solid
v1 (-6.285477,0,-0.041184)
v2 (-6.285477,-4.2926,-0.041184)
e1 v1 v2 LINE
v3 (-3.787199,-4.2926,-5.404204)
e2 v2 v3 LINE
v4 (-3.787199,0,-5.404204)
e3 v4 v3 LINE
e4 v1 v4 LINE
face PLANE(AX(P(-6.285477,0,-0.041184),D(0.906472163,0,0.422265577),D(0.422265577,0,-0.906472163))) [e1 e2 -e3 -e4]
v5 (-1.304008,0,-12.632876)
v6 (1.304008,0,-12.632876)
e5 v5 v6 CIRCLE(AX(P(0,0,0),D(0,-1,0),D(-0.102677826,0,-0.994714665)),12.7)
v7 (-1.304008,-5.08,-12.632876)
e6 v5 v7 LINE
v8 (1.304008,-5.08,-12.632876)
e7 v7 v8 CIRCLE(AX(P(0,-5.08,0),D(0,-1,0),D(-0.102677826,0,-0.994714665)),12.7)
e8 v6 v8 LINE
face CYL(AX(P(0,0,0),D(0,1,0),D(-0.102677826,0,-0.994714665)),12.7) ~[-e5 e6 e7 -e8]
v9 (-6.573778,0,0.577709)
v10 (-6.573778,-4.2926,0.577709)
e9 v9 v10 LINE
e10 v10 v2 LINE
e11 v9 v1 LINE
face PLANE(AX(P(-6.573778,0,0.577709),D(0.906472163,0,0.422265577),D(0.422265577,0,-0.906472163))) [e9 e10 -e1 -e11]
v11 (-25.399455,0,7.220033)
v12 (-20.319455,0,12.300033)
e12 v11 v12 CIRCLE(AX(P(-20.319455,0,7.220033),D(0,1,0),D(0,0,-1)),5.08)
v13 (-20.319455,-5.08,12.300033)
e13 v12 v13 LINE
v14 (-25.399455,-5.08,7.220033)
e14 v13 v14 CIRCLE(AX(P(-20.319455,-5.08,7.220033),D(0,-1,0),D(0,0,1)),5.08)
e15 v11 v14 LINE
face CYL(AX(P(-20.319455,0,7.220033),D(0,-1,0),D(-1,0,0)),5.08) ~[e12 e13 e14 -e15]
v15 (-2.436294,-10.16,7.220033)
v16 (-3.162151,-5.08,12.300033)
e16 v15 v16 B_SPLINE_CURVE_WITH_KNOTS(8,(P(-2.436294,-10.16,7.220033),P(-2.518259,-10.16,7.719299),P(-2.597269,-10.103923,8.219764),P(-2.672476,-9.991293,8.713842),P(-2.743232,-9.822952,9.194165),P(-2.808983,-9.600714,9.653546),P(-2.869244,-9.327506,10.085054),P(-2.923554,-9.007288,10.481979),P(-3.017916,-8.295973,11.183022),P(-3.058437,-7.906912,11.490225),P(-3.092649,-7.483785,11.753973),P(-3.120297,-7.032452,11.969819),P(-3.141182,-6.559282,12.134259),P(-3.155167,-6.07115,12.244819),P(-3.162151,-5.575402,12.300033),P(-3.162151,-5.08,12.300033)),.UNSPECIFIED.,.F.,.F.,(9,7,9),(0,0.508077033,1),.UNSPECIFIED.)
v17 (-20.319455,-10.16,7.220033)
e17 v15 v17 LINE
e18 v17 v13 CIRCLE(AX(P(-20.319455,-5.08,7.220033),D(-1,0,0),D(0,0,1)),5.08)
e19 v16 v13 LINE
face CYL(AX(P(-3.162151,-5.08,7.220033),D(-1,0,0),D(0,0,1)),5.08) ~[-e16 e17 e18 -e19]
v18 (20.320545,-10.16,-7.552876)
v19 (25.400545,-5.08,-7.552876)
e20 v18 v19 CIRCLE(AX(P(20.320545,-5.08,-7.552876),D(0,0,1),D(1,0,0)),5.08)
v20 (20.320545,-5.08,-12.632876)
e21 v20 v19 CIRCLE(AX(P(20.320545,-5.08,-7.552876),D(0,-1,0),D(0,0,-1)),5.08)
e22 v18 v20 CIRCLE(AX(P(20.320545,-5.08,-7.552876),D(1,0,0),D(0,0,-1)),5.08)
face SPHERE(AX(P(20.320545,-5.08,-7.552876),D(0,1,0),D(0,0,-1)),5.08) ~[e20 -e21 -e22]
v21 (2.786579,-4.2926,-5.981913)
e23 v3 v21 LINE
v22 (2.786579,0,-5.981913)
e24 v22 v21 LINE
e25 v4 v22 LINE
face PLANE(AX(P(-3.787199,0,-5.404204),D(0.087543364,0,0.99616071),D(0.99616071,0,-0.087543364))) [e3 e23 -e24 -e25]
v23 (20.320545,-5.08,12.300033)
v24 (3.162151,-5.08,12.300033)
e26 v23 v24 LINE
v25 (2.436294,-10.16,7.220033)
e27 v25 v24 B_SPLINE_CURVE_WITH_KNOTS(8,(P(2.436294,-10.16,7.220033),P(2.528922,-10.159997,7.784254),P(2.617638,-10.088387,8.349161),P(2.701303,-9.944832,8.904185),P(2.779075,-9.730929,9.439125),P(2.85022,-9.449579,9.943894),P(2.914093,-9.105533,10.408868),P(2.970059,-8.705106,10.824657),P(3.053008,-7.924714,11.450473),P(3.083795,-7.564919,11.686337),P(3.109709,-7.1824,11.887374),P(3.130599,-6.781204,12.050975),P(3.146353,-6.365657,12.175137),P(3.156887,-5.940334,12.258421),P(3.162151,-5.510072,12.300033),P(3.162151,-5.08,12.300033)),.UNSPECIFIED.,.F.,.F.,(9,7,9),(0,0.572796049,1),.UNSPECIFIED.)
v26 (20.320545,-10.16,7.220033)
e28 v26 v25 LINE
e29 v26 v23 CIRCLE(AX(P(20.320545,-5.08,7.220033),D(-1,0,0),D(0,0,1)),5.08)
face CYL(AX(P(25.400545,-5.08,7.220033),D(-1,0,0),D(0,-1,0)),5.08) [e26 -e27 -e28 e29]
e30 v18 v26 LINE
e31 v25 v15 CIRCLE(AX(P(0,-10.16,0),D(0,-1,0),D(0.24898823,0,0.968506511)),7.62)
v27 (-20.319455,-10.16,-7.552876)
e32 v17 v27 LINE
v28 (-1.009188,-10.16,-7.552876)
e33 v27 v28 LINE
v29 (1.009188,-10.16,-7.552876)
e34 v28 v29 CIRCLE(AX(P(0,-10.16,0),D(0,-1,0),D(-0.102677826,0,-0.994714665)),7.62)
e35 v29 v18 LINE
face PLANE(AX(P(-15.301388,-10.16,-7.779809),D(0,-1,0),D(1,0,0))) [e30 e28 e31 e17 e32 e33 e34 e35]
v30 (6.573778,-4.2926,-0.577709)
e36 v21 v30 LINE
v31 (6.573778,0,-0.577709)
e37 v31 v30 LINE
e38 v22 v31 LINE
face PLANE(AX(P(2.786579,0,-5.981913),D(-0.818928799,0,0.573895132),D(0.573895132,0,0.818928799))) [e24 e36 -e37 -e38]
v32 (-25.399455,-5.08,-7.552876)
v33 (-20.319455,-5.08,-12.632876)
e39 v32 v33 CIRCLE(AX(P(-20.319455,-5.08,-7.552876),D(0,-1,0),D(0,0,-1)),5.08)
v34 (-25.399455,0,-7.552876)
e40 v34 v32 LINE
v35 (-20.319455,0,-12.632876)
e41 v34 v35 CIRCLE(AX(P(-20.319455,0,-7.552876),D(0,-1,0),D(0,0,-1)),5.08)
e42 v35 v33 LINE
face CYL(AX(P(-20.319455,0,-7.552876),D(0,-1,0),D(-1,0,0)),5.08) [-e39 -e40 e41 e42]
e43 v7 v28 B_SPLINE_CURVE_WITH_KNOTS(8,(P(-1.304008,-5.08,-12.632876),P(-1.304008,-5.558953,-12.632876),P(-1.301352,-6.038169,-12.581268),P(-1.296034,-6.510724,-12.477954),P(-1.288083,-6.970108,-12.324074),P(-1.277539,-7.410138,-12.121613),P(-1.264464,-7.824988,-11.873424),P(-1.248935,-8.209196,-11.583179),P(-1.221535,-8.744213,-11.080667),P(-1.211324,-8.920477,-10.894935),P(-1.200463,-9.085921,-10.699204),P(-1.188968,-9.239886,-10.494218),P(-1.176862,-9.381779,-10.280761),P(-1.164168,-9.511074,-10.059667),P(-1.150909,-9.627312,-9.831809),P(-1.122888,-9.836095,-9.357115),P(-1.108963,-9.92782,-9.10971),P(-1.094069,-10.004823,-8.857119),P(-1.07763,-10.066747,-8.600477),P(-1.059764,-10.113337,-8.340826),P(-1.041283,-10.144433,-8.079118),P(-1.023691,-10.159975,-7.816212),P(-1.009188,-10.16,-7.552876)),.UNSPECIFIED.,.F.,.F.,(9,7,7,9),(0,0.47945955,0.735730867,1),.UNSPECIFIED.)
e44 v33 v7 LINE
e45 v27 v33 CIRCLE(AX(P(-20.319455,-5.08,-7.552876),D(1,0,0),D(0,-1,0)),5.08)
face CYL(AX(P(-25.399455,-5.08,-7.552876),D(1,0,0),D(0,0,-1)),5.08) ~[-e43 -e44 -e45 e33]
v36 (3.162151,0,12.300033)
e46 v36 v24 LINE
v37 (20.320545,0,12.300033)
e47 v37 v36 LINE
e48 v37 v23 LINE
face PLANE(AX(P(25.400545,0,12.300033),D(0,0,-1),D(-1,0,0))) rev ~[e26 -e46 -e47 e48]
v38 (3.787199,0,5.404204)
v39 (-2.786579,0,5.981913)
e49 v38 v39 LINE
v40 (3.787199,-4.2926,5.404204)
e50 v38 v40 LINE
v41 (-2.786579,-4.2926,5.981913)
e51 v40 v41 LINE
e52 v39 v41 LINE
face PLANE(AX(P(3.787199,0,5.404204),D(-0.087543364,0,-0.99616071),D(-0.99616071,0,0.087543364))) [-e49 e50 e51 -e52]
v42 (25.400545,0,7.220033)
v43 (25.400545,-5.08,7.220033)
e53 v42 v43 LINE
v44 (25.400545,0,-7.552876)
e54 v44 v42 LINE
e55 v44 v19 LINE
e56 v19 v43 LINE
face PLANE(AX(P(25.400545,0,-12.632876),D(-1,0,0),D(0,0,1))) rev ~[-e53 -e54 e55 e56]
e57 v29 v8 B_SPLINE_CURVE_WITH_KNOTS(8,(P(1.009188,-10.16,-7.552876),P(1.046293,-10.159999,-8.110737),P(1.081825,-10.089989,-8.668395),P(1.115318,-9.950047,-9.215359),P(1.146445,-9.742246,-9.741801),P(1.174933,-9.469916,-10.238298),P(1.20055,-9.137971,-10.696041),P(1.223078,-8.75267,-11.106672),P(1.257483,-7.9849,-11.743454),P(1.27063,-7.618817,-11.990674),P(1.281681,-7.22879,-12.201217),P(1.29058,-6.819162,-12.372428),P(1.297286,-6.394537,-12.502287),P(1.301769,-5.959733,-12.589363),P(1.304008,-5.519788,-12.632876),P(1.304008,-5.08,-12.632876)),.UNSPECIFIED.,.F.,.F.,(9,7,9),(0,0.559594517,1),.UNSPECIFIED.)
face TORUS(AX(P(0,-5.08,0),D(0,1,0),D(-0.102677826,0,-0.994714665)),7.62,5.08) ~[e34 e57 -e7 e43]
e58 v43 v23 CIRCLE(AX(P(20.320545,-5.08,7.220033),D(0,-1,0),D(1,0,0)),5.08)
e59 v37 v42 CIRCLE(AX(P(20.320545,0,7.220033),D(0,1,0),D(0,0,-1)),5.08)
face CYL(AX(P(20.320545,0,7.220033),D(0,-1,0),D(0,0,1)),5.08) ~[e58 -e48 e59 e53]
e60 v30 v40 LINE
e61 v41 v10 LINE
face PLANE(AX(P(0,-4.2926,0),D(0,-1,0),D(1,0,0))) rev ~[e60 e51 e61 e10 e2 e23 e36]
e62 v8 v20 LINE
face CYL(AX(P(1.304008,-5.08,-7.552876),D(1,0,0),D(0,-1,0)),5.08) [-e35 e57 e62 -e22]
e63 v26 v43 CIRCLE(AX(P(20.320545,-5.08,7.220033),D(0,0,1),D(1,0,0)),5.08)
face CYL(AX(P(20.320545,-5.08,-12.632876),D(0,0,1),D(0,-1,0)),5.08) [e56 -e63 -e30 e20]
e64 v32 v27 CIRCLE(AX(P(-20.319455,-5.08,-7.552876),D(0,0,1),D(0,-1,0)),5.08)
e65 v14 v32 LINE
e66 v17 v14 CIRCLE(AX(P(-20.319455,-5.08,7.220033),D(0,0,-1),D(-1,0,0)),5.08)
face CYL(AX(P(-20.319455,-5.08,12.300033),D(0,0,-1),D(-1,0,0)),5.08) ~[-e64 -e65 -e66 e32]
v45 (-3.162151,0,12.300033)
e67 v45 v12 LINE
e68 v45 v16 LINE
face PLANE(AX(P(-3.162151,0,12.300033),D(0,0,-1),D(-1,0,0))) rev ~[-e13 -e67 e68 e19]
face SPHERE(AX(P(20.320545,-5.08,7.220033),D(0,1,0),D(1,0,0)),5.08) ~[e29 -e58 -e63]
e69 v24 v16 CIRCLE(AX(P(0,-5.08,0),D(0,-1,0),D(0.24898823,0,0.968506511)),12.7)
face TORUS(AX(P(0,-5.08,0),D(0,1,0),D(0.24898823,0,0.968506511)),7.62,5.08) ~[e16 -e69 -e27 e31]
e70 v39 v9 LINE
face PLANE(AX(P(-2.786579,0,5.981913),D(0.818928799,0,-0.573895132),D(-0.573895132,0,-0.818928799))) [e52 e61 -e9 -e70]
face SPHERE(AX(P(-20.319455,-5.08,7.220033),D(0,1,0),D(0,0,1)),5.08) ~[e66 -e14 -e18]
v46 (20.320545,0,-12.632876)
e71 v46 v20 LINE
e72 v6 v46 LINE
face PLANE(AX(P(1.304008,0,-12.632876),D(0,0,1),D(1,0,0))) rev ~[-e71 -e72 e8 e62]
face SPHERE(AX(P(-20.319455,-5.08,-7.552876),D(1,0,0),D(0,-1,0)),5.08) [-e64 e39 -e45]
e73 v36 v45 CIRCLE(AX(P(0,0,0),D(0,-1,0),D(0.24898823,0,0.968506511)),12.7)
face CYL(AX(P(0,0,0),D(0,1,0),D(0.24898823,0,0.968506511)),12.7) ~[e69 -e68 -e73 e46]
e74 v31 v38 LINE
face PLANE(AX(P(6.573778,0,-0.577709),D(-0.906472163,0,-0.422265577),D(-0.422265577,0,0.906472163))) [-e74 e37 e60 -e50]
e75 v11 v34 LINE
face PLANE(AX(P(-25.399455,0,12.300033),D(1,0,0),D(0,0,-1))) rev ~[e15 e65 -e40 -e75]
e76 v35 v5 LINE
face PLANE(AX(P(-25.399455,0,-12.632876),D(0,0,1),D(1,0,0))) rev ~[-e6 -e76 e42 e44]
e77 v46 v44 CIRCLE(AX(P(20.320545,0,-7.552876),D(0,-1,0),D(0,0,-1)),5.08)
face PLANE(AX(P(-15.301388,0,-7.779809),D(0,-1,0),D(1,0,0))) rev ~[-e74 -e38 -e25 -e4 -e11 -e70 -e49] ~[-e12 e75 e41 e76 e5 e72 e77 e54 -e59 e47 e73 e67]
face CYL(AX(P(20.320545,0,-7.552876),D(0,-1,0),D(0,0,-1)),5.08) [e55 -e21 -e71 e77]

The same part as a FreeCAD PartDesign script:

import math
import FreeCAD as App
import Part
import Sketcher
Q = App.Units.Quantity


def edges_at(feature, points):
    """Names of the edges that pass closest to the given points."""
    edges = feature.Shape.Edges
    near = lambda p: min(range(len(edges)), key=lambda i: edges[i].distToShape(Part.Vertex(*p))[0])
    return sorted({f"Edge{near(p) + 1}" for p in points})

doc = App.newDocument("Part")
body = doc.addObject("PartDesign::Body", "Body")

sketch1 = body.newObject("Sketcher::SketchObject", "Sketch")
sketch1.AttachmentSupport = (doc.getObject("XZ_Plane"), [""])
sketch1.MapMode = "FlatFace"
sketch1.addGeometry([
    Part.LineSegment(App.Vector(-25.4, 12.3, 0), App.Vector(-25.4, -12.6, 0)),
    Part.LineSegment(App.Vector(-25.4, -12.6, 0), App.Vector(-1.3, -12.6, 0)),
    Part.ArcOfCircle(Part.Circle(App.Vector(0, 0, 0), App.Vector(0, 0, 1), 12.7), math.radians(-95.89), math.radians(-84.11)),
    Part.LineSegment(App.Vector(1.3, -12.6, 0), App.Vector(25.4, -12.6, 0)),
    Part.LineSegment(App.Vector(25.4, -12.6, 0), App.Vector(25.4, 12.3, 0)),
    Part.LineSegment(App.Vector(25.4, 12.3, 0), App.Vector(3.2, 12.3, 0)),
    Part.ArcOfCircle(Part.Circle(App.Vector(0, 0, 0), App.Vector(0, 0, 1), 12.7), math.radians(76), math.radians(104)),
    Part.LineSegment(App.Vector(-3.2, 12.3, 0), App.Vector(-25.4, 12.3, 0)),
], False)
sketch1.addConstraint([
    Sketcher.Constraint("Coincident", 0, 2, 1, 1),
    Sketcher.Constraint("Coincident", 1, 2, 2, 1),
    Sketcher.Constraint("Coincident", 2, 2, 3, 1),
    Sketcher.Constraint("Coincident", 3, 2, 4, 1),
    Sketcher.Constraint("Coincident", 4, 2, 5, 1),
    Sketcher.Constraint("Coincident", 5, 2, 6, 1),
    Sketcher.Constraint("Coincident", 6, 2, 7, 1),
    Sketcher.Constraint("Coincident", 7, 2, 0, 1),
    Sketcher.Constraint("Vertical", 0),
    Sketcher.Constraint("Horizontal", 1),
    Sketcher.Constraint("Horizontal", 3),
    Sketcher.Constraint("Vertical", 4),
    Sketcher.Constraint("Horizontal", 5),
    Sketcher.Constraint("Horizontal", 7),
    Sketcher.Constraint("Coincident", 2, 3, -1, 1),
    Sketcher.Constraint("Coincident", 6, 3, -1, 1),
    Sketcher.Constraint("Equal", 2, 6),
    Sketcher.Constraint("Horizontal", 1, 2, 2, 2),
    Sketcher.Constraint("Horizontal", 5, 2, 6, 2),
    Sketcher.Constraint("Radius", 2, Q("0.5 in")),
    Sketcher.Constraint("DistanceX", 0, 2, 3, 2, Q("2 in")),
    Sketcher.Constraint("DistanceY", 0, 2, 0, 1, Q("24.932909 mm")),
    Sketcher.Constraint("DistanceX", 6, 2, 5, 2, Q("6.324301 mm")),
    Sketcher.Constraint("DistanceX", 1, 1, 1, 2, Q("24.095446 mm")),
])
pad1 = body.newObject("PartDesign::Pad", "Pad")
pad1.Profile = sketch1
pad1.Length = Q("0.4 in")

sketch2 = body.newObject("Sketcher::SketchObject", "Sketch001")
sketch2.AttachmentSupport = (doc.getObject("XZ_Plane"), [""])
sketch2.MapMode = "FlatFace"
sketch2.addGeometry([
    Part.LineSegment(App.Vector(6.6, -0.6, 0), App.Vector(3.8, 5.4, 0)),
    Part.LineSegment(App.Vector(3.8, 5.4, 0), App.Vector(-2.8, 6, 0)),
    Part.LineSegment(App.Vector(-2.8, 6, 0), App.Vector(-6.6, 0.6, 0)),
    Part.LineSegment(App.Vector(-6.6, 0.6, 0), App.Vector(-6.3, 0, 0)),
    Part.LineSegment(App.Vector(-6.3, 0, 0), App.Vector(-3.8, -5.4, 0)),
    Part.LineSegment(App.Vector(-3.8, -5.4, 0), App.Vector(2.8, -6, 0)),
    Part.LineSegment(App.Vector(2.8, -6, 0), App.Vector(6.6, -0.6, 0)),
], False)
sketch2.addConstraint([
    Sketcher.Constraint("Coincident", 0, 2, 1, 1),
    Sketcher.Constraint("Coincident", 1, 2, 2, 1),
    Sketcher.Constraint("Coincident", 2, 2, 3, 1),
    Sketcher.Constraint("Coincident", 3, 2, 4, 1),
    Sketcher.Constraint("Coincident", 4, 2, 5, 1),
    Sketcher.Constraint("Coincident", 5, 2, 6, 1),
    Sketcher.Constraint("Coincident", 6, 2, 0, 1),
    Sketcher.Constraint("Symmetric", 0, 2, 4, 2, -1, 1),
    Sketcher.Constraint("Symmetric", 1, 2, 5, 2, -1, 1),
    Sketcher.Constraint("Symmetric", 2, 2, 6, 2, -1, 1),
    Sketcher.Constraint("Parallel", 0, 3),
    Sketcher.Constraint("Equal", 0, 1),
    Sketcher.Constraint("Equal", 1, 2),
    Sketcher.Constraint("DistanceX", -1, 1, 0, 2, Q("3.787199 mm")),
    Sketcher.Constraint("DistanceX", 2, 2, 1, 2, Q("3.787199 mm")),
    Sketcher.Constraint("DistanceX", 2, 2, 3, 2, Q("0.288301 mm")),
    Sketcher.Constraint("Distance", 3, Q("0.682748 mm")),
    Sketcher.Constraint("DistanceX", 1, 2, -1, 1, Q("2.786579 mm")),
])
pocket1 = body.newObject("PartDesign::Pocket", "Pocket")
pocket1.Profile = sketch2
pocket1.Length = Q("0.169 in")
pocket1.Reversed = True
doc.recompute()

fillet = body.newObject("PartDesign::Fillet", "Fillet")
fillet.Base = (pocket1, edges_at(pocket1, [
    (-25.399, -5.08, 12.3),
    (25.401, -5.08, 12.3),
    (25.401, -5.08, -12.633),
    (13.352, -10.16, -12.633),
    (-13.352, -10.16, -12.633),
    (0, -10.16, -12.7),
    (25.401, -10.16, -0.166),
    (14.281, -10.16, 12.3),
    (0, -10.16, 12.7),
    (-14.281, -10.16, 12.3),
    (-25.399, -10.16, -0.166),
    (-25.399, -5.08, -12.633),
]))
fillet.Radius = Q("0.2 in")

doc.recompute()
